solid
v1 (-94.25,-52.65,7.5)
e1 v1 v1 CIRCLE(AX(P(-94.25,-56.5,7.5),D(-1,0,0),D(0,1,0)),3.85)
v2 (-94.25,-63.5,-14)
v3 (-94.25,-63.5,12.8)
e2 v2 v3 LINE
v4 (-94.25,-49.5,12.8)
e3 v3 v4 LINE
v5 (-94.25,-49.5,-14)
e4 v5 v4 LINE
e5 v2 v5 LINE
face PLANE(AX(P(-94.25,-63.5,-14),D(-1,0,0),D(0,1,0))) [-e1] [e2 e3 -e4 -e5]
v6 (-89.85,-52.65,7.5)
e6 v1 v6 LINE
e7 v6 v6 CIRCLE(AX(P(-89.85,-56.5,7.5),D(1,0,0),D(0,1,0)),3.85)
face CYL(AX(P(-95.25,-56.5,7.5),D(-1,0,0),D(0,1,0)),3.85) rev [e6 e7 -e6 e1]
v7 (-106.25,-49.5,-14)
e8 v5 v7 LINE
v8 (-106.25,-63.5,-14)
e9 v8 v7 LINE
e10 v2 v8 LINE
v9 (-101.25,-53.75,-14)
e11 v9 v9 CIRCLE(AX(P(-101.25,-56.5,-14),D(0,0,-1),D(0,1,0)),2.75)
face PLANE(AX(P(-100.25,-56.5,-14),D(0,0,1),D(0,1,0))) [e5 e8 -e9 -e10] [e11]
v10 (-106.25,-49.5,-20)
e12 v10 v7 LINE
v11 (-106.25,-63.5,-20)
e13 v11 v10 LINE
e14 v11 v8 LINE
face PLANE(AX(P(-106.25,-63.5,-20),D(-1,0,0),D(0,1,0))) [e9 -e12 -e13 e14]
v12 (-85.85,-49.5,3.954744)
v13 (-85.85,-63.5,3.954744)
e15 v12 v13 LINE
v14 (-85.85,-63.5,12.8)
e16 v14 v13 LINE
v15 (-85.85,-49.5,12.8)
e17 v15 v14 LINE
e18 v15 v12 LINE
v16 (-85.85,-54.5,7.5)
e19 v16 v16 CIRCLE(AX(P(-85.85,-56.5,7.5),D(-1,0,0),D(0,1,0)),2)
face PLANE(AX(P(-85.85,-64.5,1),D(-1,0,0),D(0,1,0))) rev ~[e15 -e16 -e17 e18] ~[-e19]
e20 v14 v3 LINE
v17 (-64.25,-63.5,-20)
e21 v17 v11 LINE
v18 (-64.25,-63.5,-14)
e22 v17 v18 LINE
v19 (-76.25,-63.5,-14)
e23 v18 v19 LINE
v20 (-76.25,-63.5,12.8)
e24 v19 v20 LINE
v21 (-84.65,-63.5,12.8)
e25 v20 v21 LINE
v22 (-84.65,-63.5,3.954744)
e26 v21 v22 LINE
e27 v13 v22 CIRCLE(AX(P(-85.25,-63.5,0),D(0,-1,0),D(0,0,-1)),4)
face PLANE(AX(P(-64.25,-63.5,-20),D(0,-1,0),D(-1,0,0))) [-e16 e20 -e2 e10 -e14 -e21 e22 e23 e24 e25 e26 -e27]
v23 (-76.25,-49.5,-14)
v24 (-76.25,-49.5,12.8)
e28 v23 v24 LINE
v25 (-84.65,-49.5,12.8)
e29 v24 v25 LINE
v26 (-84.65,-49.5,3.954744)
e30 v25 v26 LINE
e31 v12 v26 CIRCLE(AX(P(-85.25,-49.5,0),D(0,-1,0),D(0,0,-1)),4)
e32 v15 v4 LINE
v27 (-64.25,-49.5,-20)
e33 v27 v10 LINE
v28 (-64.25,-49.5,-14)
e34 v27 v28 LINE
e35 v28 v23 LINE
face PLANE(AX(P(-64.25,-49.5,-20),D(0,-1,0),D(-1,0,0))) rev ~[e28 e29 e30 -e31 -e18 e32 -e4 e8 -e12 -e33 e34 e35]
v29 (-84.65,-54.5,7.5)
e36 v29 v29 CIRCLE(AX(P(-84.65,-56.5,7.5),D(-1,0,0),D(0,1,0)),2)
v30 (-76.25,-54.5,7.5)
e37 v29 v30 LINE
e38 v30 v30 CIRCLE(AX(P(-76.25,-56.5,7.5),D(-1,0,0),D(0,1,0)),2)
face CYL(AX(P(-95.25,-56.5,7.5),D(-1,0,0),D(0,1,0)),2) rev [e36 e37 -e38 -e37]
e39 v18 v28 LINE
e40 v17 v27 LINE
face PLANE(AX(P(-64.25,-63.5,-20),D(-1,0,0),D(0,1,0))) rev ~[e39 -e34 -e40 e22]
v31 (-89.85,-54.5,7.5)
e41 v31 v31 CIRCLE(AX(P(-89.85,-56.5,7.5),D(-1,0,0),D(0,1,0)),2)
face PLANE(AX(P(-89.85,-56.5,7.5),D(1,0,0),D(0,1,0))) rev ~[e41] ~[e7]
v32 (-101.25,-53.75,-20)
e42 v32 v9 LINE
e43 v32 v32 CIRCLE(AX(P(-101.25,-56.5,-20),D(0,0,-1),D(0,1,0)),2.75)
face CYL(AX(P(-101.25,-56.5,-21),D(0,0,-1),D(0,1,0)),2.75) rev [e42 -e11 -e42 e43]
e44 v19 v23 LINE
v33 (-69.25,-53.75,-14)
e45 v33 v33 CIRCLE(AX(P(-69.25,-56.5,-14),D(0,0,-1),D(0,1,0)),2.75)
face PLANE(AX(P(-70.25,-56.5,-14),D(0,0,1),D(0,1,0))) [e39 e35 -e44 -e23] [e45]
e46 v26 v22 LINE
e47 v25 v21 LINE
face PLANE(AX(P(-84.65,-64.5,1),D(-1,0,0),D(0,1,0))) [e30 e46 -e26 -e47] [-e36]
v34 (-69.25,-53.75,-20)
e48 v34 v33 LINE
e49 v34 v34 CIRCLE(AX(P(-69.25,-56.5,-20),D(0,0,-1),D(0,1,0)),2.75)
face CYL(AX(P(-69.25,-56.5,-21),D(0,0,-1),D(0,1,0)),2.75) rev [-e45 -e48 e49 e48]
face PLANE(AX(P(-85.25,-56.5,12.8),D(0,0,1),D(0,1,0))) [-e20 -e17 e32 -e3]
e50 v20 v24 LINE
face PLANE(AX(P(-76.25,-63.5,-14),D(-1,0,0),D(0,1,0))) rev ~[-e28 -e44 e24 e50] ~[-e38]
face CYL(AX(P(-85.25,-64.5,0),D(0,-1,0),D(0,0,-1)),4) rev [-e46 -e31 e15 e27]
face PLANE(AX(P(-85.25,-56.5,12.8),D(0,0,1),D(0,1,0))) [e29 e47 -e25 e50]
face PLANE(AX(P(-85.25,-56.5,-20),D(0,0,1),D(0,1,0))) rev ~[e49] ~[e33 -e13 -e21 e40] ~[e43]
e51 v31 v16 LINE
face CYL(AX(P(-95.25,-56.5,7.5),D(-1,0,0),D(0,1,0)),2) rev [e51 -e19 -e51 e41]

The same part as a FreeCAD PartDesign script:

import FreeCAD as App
import Part
import Sketcher
Q = App.Units.Quantity


def add_polygon(sketch, points):
    """Adds a closed chain of lines whose ends are joined by coincident constraints."""
    first, n = sketch.GeometryCount, len(points)
    for a, b in zip(points, points[1:] + points[:1]):
        sketch.addGeometry(Part.LineSegment(App.Vector(*a, 0), App.Vector(*b, 0)), False)
    for i in range(n):
        sketch.addConstraint(Sketcher.Constraint("Coincident", first + i, 2, first + (i + 1) % n, 1))

doc = App.newDocument("Part")
params = doc.addObject("Spreadsheet::Sheet", "Params")
for row, (alias, value) in enumerate([
    ("sketch1_diameter", "5.5 mm"),
    ("pad1_length", "8 mm"),
    ("sketch2_diameter", "5.5 mm"),
    ("pad2_length", "8 mm"),
    ("sketch3_diameter", "4 mm"),
    ("pad3_length", "20 mm"),
    ("sketch4_width", "16 mm"),
    ("sketch4_height", "1.2 mm"),
    ("pad4_length", "13.8 mm"),
    ("sketch5_diameter", "8 mm"),
    ("pad5_length", "16 mm"),
    ("sketch6_diameter", "7.7 mm"),
    ("pad6_length", "5.4 mm"),
    ("sketch7_width", "14 mm"),
    ("sketch7_height", "12 mm"),
    ("pad7_length", "26.8 mm"),
    ("sketch8_width", "14 mm"),
    ("sketch8_height", "12 mm"),
    ("pad8_length", "26.8 mm"),
    ("sketch9_width", "14 mm"),
    ("sketch9_height", "42 mm"),
    ("pad9_length", "32.8 mm"),
], start=1):
    params.set(f"A{row}", alias)
    params.set(f"B{row}", "=" + value)
    params.setAlias(f"B{row}", alias)

body = doc.addObject("PartDesign::Body", "Body")

# Sketch on XY plane
sketch1 = doc.addObject("Sketcher::SketchObject", "Sketch")
body.addObject(sketch1)
sketch1.AttachmentSupport = (doc.XY_Plane, [""])
sketch1.MapMode = "FlatFace"
sketch1.AttachmentOffset = App.Placement(App.Vector(0, 0, -1), App.Rotation())
sketch1.addGeometry(Part.Circle(App.Vector(7, -16, 0), App.Vector(0, 0, 1), 2.75), False)
sketch1.addConstraint(Sketcher.Constraint("Diameter", 0, Q("5.5 mm")))
sketch1.addConstraint(Sketcher.Constraint("DistanceX", -1, 1, 0, 3, Q("7 mm")))
sketch1.addConstraint(Sketcher.Constraint("DistanceY", 0, 3, -1, 1, Q("16 mm")))
sketch1.setExpression("Constraints[0]", "Params.sketch1_diameter")
pad1 = doc.addObject("PartDesign::Pad", "Pad")
body.addObject(pad1)
pad1.Profile = sketch1
pad1.setExpression("Length", "Params.pad1_length")
body2 = doc.addObject("PartDesign::Body", "Body001")
body2.AllowCompound = True

# Sketch on XY plane
sketch2 = doc.addObject("Sketcher::SketchObject", "Sketch001")
body2.addObject(sketch2)
sketch2.AttachmentSupport = (doc.getObject("XY_Plane001"), [""])
sketch2.MapMode = "FlatFace"
sketch2.AttachmentOffset = App.Placement(App.Vector(0, 0, -1), App.Rotation())
sketch2.addGeometry(Part.Circle(App.Vector(7, 16, 0), App.Vector(0, 0, 1), 2.75), False)
sketch2.addConstraint(Sketcher.Constraint("Diameter", 0, Q("5.5 mm")))
sketch2.addConstraint(Sketcher.Constraint("DistanceX", -1, 1, 0, 3, Q("7 mm")))
sketch2.addConstraint(Sketcher.Constraint("DistanceY", -1, 1, 0, 3, Q("16 mm")))
sketch2.setExpression("Constraints[0]", "Params.sketch2_diameter")
pad2 = doc.addObject("PartDesign::Pad", "Pad001")
body2.addObject(pad2)
pad2.Profile = sketch2
pad2.setExpression("Length", "Params.pad2_length")
doc.recompute()

boolean = doc.addObject("PartDesign::Boolean", "Boolean")
body2.addObject(boolean)
boolean.Type = "Fuse"
boolean.addObjects([body])
body3 = doc.addObject("PartDesign::Body", "Body002")
body3.AllowCompound = True
doc.recompute()

body2.Placement = App.Placement(App.Vector(0, -7, 0), App.Rotation(App.Vector(0, 0, 1), 90))
boolean2 = doc.addObject("PartDesign::Boolean", "Boolean001")
body3.addObject(boolean2)
boolean2.Type = "Fuse"
boolean2.addObjects([body2])
body4 = doc.addObject("PartDesign::Body", "Body003")

# Sketch on XY plane
sketch3 = doc.addObject("Sketcher::SketchObject", "Sketch002")
body4.addObject(sketch3)
sketch3.AttachmentSupport = (doc.getObject("XY_Plane003"), [""])
sketch3.MapMode = "FlatFace"
sketch3.addGeometry(Part.Circle(App.Vector(0, 0, 0), App.Vector(0, 0, 1), 2), False)
sketch3.addConstraint(Sketcher.Constraint("Coincident", 0, 3, -1, 1))
sketch3.addConstraint(Sketcher.Constraint("Diameter", 0, Q("4 mm")))
sketch3.setExpression("Constraints[1]", "Params.sketch3_diameter")
pad3 = doc.addObject("PartDesign::Pad", "Pad002")
body4.addObject(pad3)
pad3.Profile = sketch3
pad3.setExpression("Length", "Params.pad3_length")
body5 = doc.addObject("PartDesign::Body", "Body004")
doc.recompute()

body4.Placement = App.Placement(App.Vector(0, 0, 0), App.Rotation(App.Vector(1, 0, 0), 90))
boolean3 = doc.addObject("PartDesign::Boolean", "Boolean002")
body5.addObject(boolean3)
boolean3.Type = "Fuse"
boolean3.addObjects([body4])
body6 = doc.addObject("PartDesign::Body", "Body005")
doc.recompute()

body5.Placement = App.Placement(App.Vector(7, 10, 27.5), App.Rotation(App.Vector(0, 0, 1), 0))
boolean4 = doc.addObject("PartDesign::Boolean", "Boolean003")
body6.addObject(boolean4)
boolean4.Type = "Fuse"
boolean4.addObjects([body5])
body7 = doc.addObject("PartDesign::Body", "Body006")

# Sketch on XY plane
sketch4 = doc.addObject("Sketcher::SketchObject", "Sketch003")
body7.addObject(sketch4)
sketch4.AttachmentSupport = (doc.getObject("XY_Plane006"), [""])
sketch4.MapMode = "FlatFace"
sketch4.AttachmentOffset = App.Placement(App.Vector(0, 0, 21), App.Rotation())
add_polygon(sketch4, [(-1, 0.6), (-1, -0.6), (15, -0.6), (15, 0.6)])  # lines 0-3
sketch4.addConstraint(Sketcher.Constraint("Vertical", 0))
sketch4.addConstraint(Sketcher.Constraint("Horizontal", 1))
sketch4.addConstraint(Sketcher.Constraint("Vertical", 2))
sketch4.addConstraint(Sketcher.Constraint("Horizontal", 3))
sketch4.addConstraint(Sketcher.Constraint("DistanceX", 1, 1, 1, 2, Q("16 mm")))
sketch4.addConstraint(Sketcher.Constraint("DistanceY", 0, 2, 0, 1, Q("1.2 mm")))
sketch4.addConstraint(Sketcher.Constraint("DistanceX", 0, 2, -1, 1, Q("1 mm")))
sketch4.addConstraint(Sketcher.Constraint("DistanceY", 0, 2, -1, 1, Q("0.6 mm")))
sketch4.setExpression("Constraints[8]", "Params.sketch4_width")
sketch4.setExpression("Constraints[9]", "Params.sketch4_height")
pad4 = doc.addObject("PartDesign::Pad", "Pad003")
body7.addObject(pad4)
pad4.Profile = sketch4
pad4.setExpression("Length", "Params.pad4_length")
body8 = doc.addObject("PartDesign::Body", "Body007")

# Sketch on XY plane
sketch5 = doc.addObject("Sketcher::SketchObject", "Sketch004")
body8.addObject(sketch5)
sketch5.AttachmentSupport = (doc.getObject("XY_Plane007"), [""])
sketch5.MapMode = "FlatFace"
sketch5.addGeometry(Part.Circle(App.Vector(0, 0, 0), App.Vector(0, 0, 1), 4), False)
sketch5.addConstraint(Sketcher.Constraint("Coincident", 0, 3, -1, 1))
sketch5.addConstraint(Sketcher.Constraint("Diameter", 0, Q("8 mm")))
sketch5.setExpression("Constraints[1]", "Params.sketch5_diameter")
pad5 = doc.addObject("PartDesign::Pad", "Pad004")
body8.addObject(pad5)
pad5.Profile = sketch5
pad5.setExpression("Length", "Params.pad5_length")
body9 = doc.addObject("PartDesign::Body", "Body008")
doc.recompute()

body8.Placement = App.Placement(App.Vector(0, 0, 0), App.Rotation(App.Vector(0, 1, 0), 90))
boolean5 = doc.addObject("PartDesign::Boolean", "Boolean004")
body9.addObject(boolean5)
boolean5.Type = "Fuse"
boolean5.addObjects([body8])
body10 = doc.addObject("PartDesign::Body", "Body009")
doc.recompute()

body9.Placement = App.Placement(App.Vector(-1, 0, 20), App.Rotation(App.Vector(0, 0, 1), 0))
boolean6 = doc.addObject("PartDesign::Boolean", "Boolean005")
body10.addObject(boolean6)
boolean6.Type = "Fuse"
boolean6.addObjects([body9])
body11 = doc.addObject("PartDesign::Body", "Body010")

# Sketch on XY plane
sketch6 = doc.addObject("Sketcher::SketchObject", "Sketch005")
body11.addObject(sketch6)
sketch6.AttachmentSupport = (doc.getObject("XY_Plane010"), [""])
sketch6.MapMode = "FlatFace"
sketch6.addGeometry(Part.Circle(App.Vector(0, 0, 0), App.Vector(0, 0, 1), 3.85), False)
sketch6.addConstraint(Sketcher.Constraint("Coincident", 0, 3, -1, 1))
sketch6.addConstraint(Sketcher.Constraint("Diameter", 0, Q("7.7 mm")))
sketch6.setExpression("Constraints[1]", "Params.sketch6_diameter")
pad6 = doc.addObject("PartDesign::Pad", "Pad005")
body11.addObject(pad6)
pad6.Profile = sketch6
pad6.setExpression("Length", "Params.pad6_length")
body12 = doc.addObject("PartDesign::Body", "Body011")
doc.recompute()

body11.Placement = App.Placement(App.Vector(0, 0, 0), App.Rotation(App.Vector(1, 0, 0), 90))
boolean7 = doc.addObject("PartDesign::Boolean", "Boolean006")
body12.addObject(boolean7)
boolean7.Type = "Fuse"
boolean7.addObjects([body11])
body13 = doc.addObject("PartDesign::Body", "Body012")
doc.recompute()

body12.Placement = App.Placement(App.Vector(7, 10, 27.5), App.Rotation(App.Vector(0, 0, 1), 0))
boolean8 = doc.addObject("PartDesign::Boolean", "Boolean007")
body13.addObject(boolean8)
boolean8.Type = "Fuse"
boolean8.addObjects([body12])
doc.recompute()

boolean9 = doc.addObject("PartDesign::Boolean", "Boolean008")
body13.addObject(boolean9)
boolean9.Type = "Fuse"
boolean9.addObjects([body6])
doc.recompute()

boolean10 = doc.addObject("PartDesign::Boolean", "Boolean009")
body13.addObject(boolean10)
boolean10.Type = "Fuse"
boolean10.addObjects([body7])
doc.recompute()

boolean11 = doc.addObject("PartDesign::Boolean", "Boolean010")
body13.addObject(boolean11)
boolean11.Type = "Fuse"
boolean11.addObjects([body10])
body14 = doc.addObject("PartDesign::Body", "Body013")

# Sketch on XY plane
sketch7 = doc.addObject("Sketcher::SketchObject", "Sketch006")
body14.addObject(sketch7)
sketch7.AttachmentSupport = (doc.getObject("XY_Plane013"), [""])
sketch7.MapMode = "FlatFace"
sketch7.AttachmentOffset = App.Placement(App.Vector(0, 0, 6), App.Rotation())
add_polygon(sketch7, [(0, -9), (0, -21), (14, -21), (14, -9)])  # lines 0-3
sketch7.addConstraint(Sketcher.Constraint("Vertical", 0))
sketch7.addConstraint(Sketcher.Constraint("Horizontal", 1))
sketch7.addConstraint(Sketcher.Constraint("Vertical", 2))
sketch7.addConstraint(Sketcher.Constraint("Horizontal", 3))
sketch7.addConstraint(Sketcher.Constraint("PointOnObject", 0, 2, -2))
sketch7.addConstraint(Sketcher.Constraint("DistanceX", 1, 1, 1, 2, Q("14 mm")))
sketch7.addConstraint(Sketcher.Constraint("DistanceY", 0, 2, 0, 1, Q("12 mm")))
sketch7.addConstraint(Sketcher.Constraint("DistanceY", 0, 2, -1, 1, Q("21 mm")))
sketch7.setExpression("Constraints[9]", "Params.sketch7_width")
sketch7.setExpression("Constraints[10]", "Params.sketch7_height")
pad7 = doc.addObject("PartDesign::Pad", "Pad006")
body14.addObject(pad7)
pad7.Profile = sketch7
pad7.setExpression("Length", "Params.pad7_length")
body15 = doc.addObject("PartDesign::Body", "Body014")
body15.AllowCompound = True

# Sketch on XY plane
sketch8 = doc.addObject("Sketcher::SketchObject", "Sketch007")
body15.addObject(sketch8)
sketch8.AttachmentSupport = (doc.getObject("XY_Plane014"), [""])
sketch8.MapMode = "FlatFace"
sketch8.AttachmentOffset = App.Placement(App.Vector(0, 0, 6), App.Rotation())
add_polygon(sketch8, [(0, 21), (0, 9), (14, 9), (14, 21)])  # lines 0-3
sketch8.addConstraint(Sketcher.Constraint("Vertical", 0))
sketch8.addConstraint(Sketcher.Constraint("Horizontal", 1))
sketch8.addConstraint(Sketcher.Constraint("Vertical", 2))
sketch8.addConstraint(Sketcher.Constraint("Horizontal", 3))
sketch8.addConstraint(Sketcher.Constraint("PointOnObject", 0, 2, -2))
sketch8.addConstraint(Sketcher.Constraint("DistanceX", 1, 1, 1, 2, Q("14 mm")))
sketch8.addConstraint(Sketcher.Constraint("DistanceY", 0, 2, 0, 1, Q("12 mm")))
sketch8.addConstraint(Sketcher.Constraint("DistanceY", -1, 1, 0, 2, Q("9 mm")))
sketch8.setExpression("Constraints[9]", "Params.sketch8_width")
sketch8.setExpression("Constraints[10]", "Params.sketch8_height")
pad8 = doc.addObject("PartDesign::Pad", "Pad007")
body15.addObject(pad8)
pad8.Profile = sketch8
pad8.setExpression("Length", "Params.pad8_length")
doc.recompute()

boolean12 = doc.addObject("PartDesign::Boolean", "Boolean011")
body15.addObject(boolean12)
boolean12.Type = "Fuse"
boolean12.addObjects([body14])
body16 = doc.addObject("PartDesign::Body", "Body015")

# Sketch on XY plane
sketch9 = doc.addObject("Sketcher::SketchObject", "Sketch008")
body16.addObject(sketch9)
sketch9.AttachmentSupport = (doc.getObject("XY_Plane015"), [""])
sketch9.MapMode = "FlatFace"
add_polygon(sketch9, [(0, 21), (0, -21), (14, -21), (14, 21)])  # lines 0-3
sketch9.addConstraint(Sketcher.Constraint("Vertical", 0))
sketch9.addConstraint(Sketcher.Constraint("Horizontal", 1))
sketch9.addConstraint(Sketcher.Constraint("Vertical", 2))
sketch9.addConstraint(Sketcher.Constraint("Horizontal", 3))
sketch9.addConstraint(Sketcher.Constraint("Symmetric", 0, 2, 3, 2, -1, 1))
sketch9.addConstraint(Sketcher.Constraint("DistanceX", 1, 1, 1, 2, Q("14 mm")))
sketch9.addConstraint(Sketcher.Constraint("DistanceY", 0, 2, 0, 1, Q("42 mm")))
sketch9.setExpression("Constraints[9]", "Params.sketch9_width")
sketch9.setExpression("Constraints[10]", "Params.sketch9_height")
pad9 = doc.addObject("PartDesign::Pad", "Pad008")
body16.addObject(pad9)
pad9.Profile = sketch9
pad9.setExpression("Length", "Params.pad9_length")
doc.recompute()

boolean13 = doc.addObject("PartDesign::Boolean", "Boolean012")
body16.addObject(boolean13)
boolean13.Type = "Cut"
boolean13.addObjects([body15])
doc.recompute()

boolean14 = doc.addObject("PartDesign::Boolean", "Boolean013")
body16.addObject(boolean14)
boolean14.Type = "Cut"
boolean14.addObjects([body13])
body17 = doc.addObject("PartDesign::Body", "Body016")
doc.recompute()

body16.Placement = App.Placement(App.Vector(0, -7, 0), App.Rotation(App.Vector(0, 0, 1), 90))
boolean15 = doc.addObject("PartDesign::Boolean", "Boolean014")
body17.addObject(boolean15)
boolean15.Type = "Fuse"
boolean15.addObjects([body16])
doc.recompute()

boolean16 = doc.addObject("PartDesign::Boolean", "Boolean015")
body17.addObject(boolean16)
boolean16.Type = "Cut"
boolean16.addObjects([body3])
body18 = doc.addObject("PartDesign::Body", "Body017")
doc.recompute()

body17.Placement = App.Placement(App.Vector(85.25, -56.5, -20), App.Rotation(App.Vector(0, 0, 1), 0))
boolean17 = doc.addObject("PartDesign::Boolean", "Boolean016")
body18.addObject(boolean17)
boolean17.Type = "Fuse"
boolean17.addObjects([body17])
body19 = doc.addObject("PartDesign::Body", "Body018")
doc.recompute()

body18.Placement = App.Placement(App.Vector(-170.5, 0, 0), App.Rotation(App.Vector(0, 0, 1), 0))
boolean18 = doc.addObject("PartDesign::Boolean", "Boolean017")
body19.addObject(boolean18)
boolean18.Type = "Fuse"
boolean18.addObjects([body18])

doc.recompute()
